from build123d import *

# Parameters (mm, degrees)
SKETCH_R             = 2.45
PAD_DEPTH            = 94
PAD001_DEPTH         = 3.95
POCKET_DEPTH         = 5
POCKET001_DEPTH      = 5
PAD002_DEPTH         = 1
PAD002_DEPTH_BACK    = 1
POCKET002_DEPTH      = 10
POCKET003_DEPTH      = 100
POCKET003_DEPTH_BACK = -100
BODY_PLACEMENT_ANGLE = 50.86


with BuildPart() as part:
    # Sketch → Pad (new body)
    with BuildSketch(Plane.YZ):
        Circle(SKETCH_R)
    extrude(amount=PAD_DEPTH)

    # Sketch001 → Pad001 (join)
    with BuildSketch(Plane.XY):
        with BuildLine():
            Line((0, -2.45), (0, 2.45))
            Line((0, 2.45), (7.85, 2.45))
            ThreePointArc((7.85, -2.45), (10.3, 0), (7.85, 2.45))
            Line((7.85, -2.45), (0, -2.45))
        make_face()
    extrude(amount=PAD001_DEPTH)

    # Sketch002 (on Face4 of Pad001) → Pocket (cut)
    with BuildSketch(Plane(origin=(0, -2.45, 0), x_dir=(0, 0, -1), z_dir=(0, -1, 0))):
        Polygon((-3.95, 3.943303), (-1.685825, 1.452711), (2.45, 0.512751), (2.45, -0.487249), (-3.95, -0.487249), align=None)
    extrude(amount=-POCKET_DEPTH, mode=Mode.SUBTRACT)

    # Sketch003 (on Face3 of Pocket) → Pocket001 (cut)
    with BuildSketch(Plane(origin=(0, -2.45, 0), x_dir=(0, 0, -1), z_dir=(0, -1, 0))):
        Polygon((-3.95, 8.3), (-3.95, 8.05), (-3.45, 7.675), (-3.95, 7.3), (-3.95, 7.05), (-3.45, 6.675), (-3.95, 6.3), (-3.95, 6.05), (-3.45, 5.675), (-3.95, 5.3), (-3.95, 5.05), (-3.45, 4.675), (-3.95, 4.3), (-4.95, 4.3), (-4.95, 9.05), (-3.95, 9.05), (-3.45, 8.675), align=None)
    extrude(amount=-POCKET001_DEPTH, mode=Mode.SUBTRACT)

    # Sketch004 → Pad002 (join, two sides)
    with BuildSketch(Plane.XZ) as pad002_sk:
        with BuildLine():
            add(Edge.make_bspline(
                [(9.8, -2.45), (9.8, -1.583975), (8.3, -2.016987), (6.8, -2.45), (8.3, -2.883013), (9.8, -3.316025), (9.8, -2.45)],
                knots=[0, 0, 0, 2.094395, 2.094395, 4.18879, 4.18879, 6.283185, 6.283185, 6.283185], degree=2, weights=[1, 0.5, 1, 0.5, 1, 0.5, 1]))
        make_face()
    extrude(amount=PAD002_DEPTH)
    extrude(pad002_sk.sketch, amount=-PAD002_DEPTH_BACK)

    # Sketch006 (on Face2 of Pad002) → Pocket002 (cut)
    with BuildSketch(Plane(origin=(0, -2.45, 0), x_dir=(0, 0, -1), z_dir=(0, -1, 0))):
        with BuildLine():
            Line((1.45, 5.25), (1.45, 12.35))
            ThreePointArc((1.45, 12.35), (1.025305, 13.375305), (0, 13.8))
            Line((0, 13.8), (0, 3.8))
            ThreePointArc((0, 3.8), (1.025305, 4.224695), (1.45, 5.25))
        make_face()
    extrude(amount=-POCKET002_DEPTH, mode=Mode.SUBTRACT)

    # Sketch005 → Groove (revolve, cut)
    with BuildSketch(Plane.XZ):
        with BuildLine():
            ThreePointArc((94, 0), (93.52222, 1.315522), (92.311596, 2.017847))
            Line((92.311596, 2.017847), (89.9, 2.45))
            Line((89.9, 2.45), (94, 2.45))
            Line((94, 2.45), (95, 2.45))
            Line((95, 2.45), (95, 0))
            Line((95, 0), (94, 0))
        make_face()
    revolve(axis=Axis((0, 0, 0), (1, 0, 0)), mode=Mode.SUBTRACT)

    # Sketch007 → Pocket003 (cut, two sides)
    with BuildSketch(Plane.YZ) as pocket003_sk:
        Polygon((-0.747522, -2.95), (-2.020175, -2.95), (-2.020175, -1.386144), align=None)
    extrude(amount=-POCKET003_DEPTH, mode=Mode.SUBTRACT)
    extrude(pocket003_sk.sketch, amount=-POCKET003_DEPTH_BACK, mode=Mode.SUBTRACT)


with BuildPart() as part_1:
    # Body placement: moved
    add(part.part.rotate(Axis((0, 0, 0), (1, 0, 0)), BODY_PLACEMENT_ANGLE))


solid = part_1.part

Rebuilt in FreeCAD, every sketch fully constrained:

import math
import FreeCAD as App
import Part
import Sketcher

V = App.Vector

doc = App.newDocument("Part")
body = doc.addObject("PartDesign::Body", "Body")

sketch1 = body.newObject("Sketcher::SketchObject", "Sketch")
sketch1.AttachmentSupport = (doc.getObject("YZ_Plane"), [""])
sketch1.MapMode = "FlatFace"
sketch1.addGeometry(Part.Circle(V(0, 0, 0), V(0, 0, 1), 2.45), False)
sketch1.addConstraint(Sketcher.Constraint("Coincident", 0, 3, -1, 1))
sketch1.addConstraint(Sketcher.Constraint("Diameter", 0, 4.9))
pad1 = body.newObject("PartDesign::Pad", "Pad")
pad1.Profile = sketch1
pad1.Length = 94

sketch2 = body.newObject("Sketcher::SketchObject", "Sketch001")
sketch2.AttachmentSupport = (doc.getObject("XY_Plane"), [""])
sketch2.MapMode = "FlatFace"
sketch2.addGeometry(Part.LineSegment(V(0, 2.45, 0), V(0, -2.45, 0)), False)
sketch2.addGeometry(Part.LineSegment(V(0, -2.45, 0), V(7.85, -2.45, 0)), False)
sketch2.addGeometry(Part.ArcOfCircle(Part.Circle(V(7.85, 0, 0), V(0, 0, 1), 2.45), math.radians(-90), math.radians(90)), False)
sketch2.addGeometry(Part.LineSegment(V(7.85, 2.45, 0), V(0, 2.45, 0)), False)
sketch2.addConstraint(Sketcher.Constraint("Coincident", 0, 2, 1, 1))
sketch2.addConstraint(Sketcher.Constraint("Tangent", 1, 2, 2, 1))
sketch2.addConstraint(Sketcher.Constraint("Tangent", 2, 2, 3, 1))
sketch2.addConstraint(Sketcher.Constraint("Coincident", 3, 2, 0, 1))
sketch2.addConstraint(Sketcher.Constraint("Vertical", 0))
sketch2.addConstraint(Sketcher.Constraint("Horizontal", 1))
sketch2.addConstraint(Sketcher.Constraint("Horizontal", 3))
sketch2.addConstraint(Sketcher.Constraint("Symmetric", 0, 2, 3, 2, -1, 1))
sketch2.addConstraint(Sketcher.Constraint("Radius", 2, 2.45))
sketch2.addConstraint(Sketcher.Constraint("DistanceX", 1, 1, 1, 2, 7.85))
pad2 = body.newObject("PartDesign::Pad", "Pad001")
pad2.Profile = sketch2
pad2.Length = 3.95

sketch3 = body.newObject("Sketcher::SketchObject", "Sketch002")
sketch3.AttachmentSupport = (doc.getObject("XZ_Plane"), [""])
sketch3.MapMode = "FlatFace"
sketch3.AttachmentOffset = App.Placement(V(0, 0, 2.45), App.Rotation())
sketch3.addGeometry(Part.LineSegment(V(1.452711, 1.685825, 0), V(3.943303, 3.95, 0)), False)
sketch3.addGeometry(Part.LineSegment(V(3.943303, 3.95, 0), V(-0.487249, 3.95, 0)), False)
sketch3.addGeometry(Part.LineSegment(V(-0.487249, 3.95, 0), V(-0.487249, -2.45, 0)), False)
sketch3.addGeometry(Part.LineSegment(V(-0.487249, -2.45, 0), V(0.512751, -2.45, 0)), False)
sketch3.addGeometry(Part.LineSegment(V(0.512751, -2.45, 0), V(1.452711, 1.685825, 0)), False)
sketch3.addConstraint(Sketcher.Constraint("Coincident", 0, 2, 1, 1))
sketch3.addConstraint(Sketcher.Constraint("Coincident", 1, 2, 2, 1))
sketch3.addConstraint(Sketcher.Constraint("Coincident", 2, 2, 3, 1))
sketch3.addConstraint(Sketcher.Constraint("Coincident", 3, 2, 4, 1))
sketch3.addConstraint(Sketcher.Constraint("Coincident", 4, 2, 0, 1))
sketch3.addConstraint(Sketcher.Constraint("Horizontal", 1))
sketch3.addConstraint(Sketcher.Constraint("Vertical", 2))
sketch3.addConstraint(Sketcher.Constraint("Horizontal", 3))
sketch3.addConstraint(Sketcher.Constraint("DistanceX", 3, 1, 3, 2, 1.0))
sketch3.addConstraint(Sketcher.Constraint("DistanceY", 2, 2, 2, 1, 6.4))
sketch3.addConstraint(Sketcher.Constraint("DistanceY", -1, 1, 0, 2, 3.95))
sketch3.addConstraint(Sketcher.Constraint("DistanceX", 1, 2, 1, 1, 4.430552))
sketch3.addConstraint(Sketcher.Constraint("DistanceX", 1, 2, -1, 1, 0.487249))
sketch3.addConstraint(Sketcher.Constraint("DistanceX", -1, 1, 4, 2, 1.452711))
sketch3.addConstraint(Sketcher.Constraint("Distance", 0, 3.365938))
pocket1 = body.newObject("PartDesign::Pocket", "Pocket")
pocket1.Profile = sketch3
pocket1.Length = 5

sketch4 = body.newObject("Sketcher::SketchObject", "Sketch003")
sketch4.AttachmentSupport = (doc.getObject("XZ_Plane"), [""])
sketch4.MapMode = "FlatFace"
sketch4.AttachmentOffset = App.Placement(V(0, 0, 2.45), App.Rotation())
sketch4.addGeometry(Part.LineSegment(V(8.05, 3.95, 0), V(8.3, 3.95, 0)), False)
sketch4.addGeometry(Part.LineSegment(V(8.3, 3.95, 0), V(8.675, 3.45, 0)), False)
sketch4.addGeometry(Part.LineSegment(V(8.675, 3.45, 0), V(9.05, 3.95, 0)), False)
sketch4.addGeometry(Part.LineSegment(V(9.05, 3.95, 0), V(9.05, 4.95, 0)), False)
sketch4.addGeometry(Part.LineSegment(V(9.05, 4.95, 0), V(4.3, 4.95, 0)), False)
sketch4.addGeometry(Part.LineSegment(V(4.3, 4.95, 0), V(4.3, 3.95, 0)), False)
sketch4.addGeometry(Part.LineSegment(V(4.3, 3.95, 0), V(4.675, 3.45, 0)), False)
sketch4.addGeometry(Part.LineSegment(V(4.675, 3.45, 0), V(5.05, 3.95, 0)), False)
sketch4.addGeometry(Part.LineSegment(V(5.05, 3.95, 0), V(5.3, 3.95, 0)), False)
sketch4.addGeometry(Part.LineSegment(V(5.3, 3.95, 0), V(5.675, 3.45, 0)), False)
sketch4.addGeometry(Part.LineSegment(V(5.675, 3.45, 0), V(6.05, 3.95, 0)), False)
sketch4.addGeometry(Part.LineSegment(V(6.05, 3.95, 0), V(6.3, 3.95, 0)), False)
sketch4.addGeometry(Part.LineSegment(V(6.3, 3.95, 0), V(6.675, 3.45, 0)), False)
sketch4.addGeometry(Part.LineSegment(V(6.675, 3.45, 0), V(7.05, 3.95, 0)), False)
sketch4.addGeometry(Part.LineSegment(V(7.05, 3.95, 0), V(7.3, 3.95, 0)), False)
sketch4.addGeometry(Part.LineSegment(V(7.3, 3.95, 0), V(7.675, 3.45, 0)), False)
sketch4.addGeometry(Part.LineSegment(V(7.675, 3.45, 0), V(8.05, 3.95, 0)), False)
sketch4.addConstraint(Sketcher.Constraint("Coincident", 0, 2, 1, 1))
sketch4.addConstraint(Sketcher.Constraint("Coincident", 1, 2, 2, 1))
sketch4.addConstraint(Sketcher.Constraint("Coincident", 2, 2, 3, 1))
sketch4.addConstraint(Sketcher.Constraint("Coincident", 3, 2, 4, 1))
sketch4.addConstraint(Sketcher.Constraint("Coincident", 4, 2, 5, 1))
sketch4.addConstraint(Sketcher.Constraint("Coincident", 5, 2, 6, 1))
sketch4.addConstraint(Sketcher.Constraint("Coincident", 6, 2, 7, 1))
sketch4.addConstraint(Sketcher.Constraint("Coincident", 7, 2, 8, 1))
sketch4.addConstraint(Sketcher.Constraint("Coincident", 8, 2, 9, 1))
sketch4.addConstraint(Sketcher.Constraint("Coincident", 9, 2, 10, 1))
sketch4.addConstraint(Sketcher.Constraint("Coincident", 10, 2, 11, 1))
sketch4.addConstraint(Sketcher.Constraint("Coincident", 11, 2, 12, 1))
sketch4.addConstraint(Sketcher.Constraint("Coincident", 12, 2, 13, 1))
sketch4.addConstraint(Sketcher.Constraint("Coincident", 13, 2, 14, 1))
sketch4.addConstraint(Sketcher.Constraint("Coincident", 14, 2, 15, 1))
sketch4.addConstraint(Sketcher.Constraint("Coincident", 15, 2, 16, 1))
sketch4.addConstraint(Sketcher.Constraint("Coincident", 16, 2, 0, 1))
sketch4.addConstraint(Sketcher.Constraint("Horizontal", 0))
sketch4.addConstraint(Sketcher.Constraint("Vertical", 3))
sketch4.addConstraint(Sketcher.Constraint("Horizontal", 4))
sketch4.addConstraint(Sketcher.Constraint("Vertical", 5))
sketch4.addConstraint(Sketcher.Constraint("Horizontal", 8))
sketch4.addConstraint(Sketcher.Constraint("Horizontal", 11))
sketch4.addConstraint(Sketcher.Constraint("Horizontal", 14))
sketch4.addConstraint(Sketcher.Constraint("Parallel", 1, 6))
sketch4.addConstraint(Sketcher.Constraint("Parallel", 2, 7))
sketch4.addConstraint(Sketcher.Constraint("Parallel", 6, 9))
sketch4.addConstraint(Sketcher.Constraint("Parallel", 7, 10))
sketch4.addConstraint(Sketcher.Constraint("Parallel", 9, 12))
sketch4.addConstraint(Sketcher.Constraint("Parallel", 10, 13))
sketch4.addConstraint(Sketcher.Constraint("Parallel", 12, 15))
sketch4.addConstraint(Sketcher.Constraint("Parallel", 13, 16))
sketch4.addConstraint(Sketcher.Constraint("Horizontal", 0, 2, 2, 2))
sketch4.addConstraint(Sketcher.Constraint("Horizontal", 2, 2, 5, 2))
sketch4.addConstraint(Sketcher.Constraint("Horizontal", 1, 2, 6, 2))
sketch4.addConstraint(Sketcher.Constraint("Horizontal", 5, 2, 7, 2))
sketch4.addConstraint(Sketcher.Constraint("Horizontal", 6, 2, 9, 2))
sketch4.addConstraint(Sketcher.Constraint("Horizontal", 8, 2, 10, 2))
sketch4.addConstraint(Sketcher.Constraint("Horizontal", 9, 2, 12, 2))
sketch4.addConstraint(Sketcher.Constraint("Horizontal", 11, 2, 13, 2))
sketch4.addConstraint(Sketcher.Constraint("Horizontal", 12, 2, 15, 2))
sketch4.addConstraint(Sketcher.Constraint("Equal", 0, 8))
sketch4.addConstraint(Sketcher.Constraint("Equal", 8, 11))
sketch4.addConstraint(Sketcher.Constraint("Equal", 11, 14))
sketch4.addConstraint(Sketcher.Constraint("Equal", 1, 2))
sketch4.addConstraint(Sketcher.Constraint("DistanceY", 3, 1, 3, 2, 1.0))
sketch4.addConstraint(Sketcher.Constraint("DistanceX", 4, 2, 0, 2, 4.0))
sketch4.addConstraint(Sketcher.Constraint("DistanceX", 0, 1, 0, 2, 0.25))
sketch4.addConstraint(Sketcher.Constraint("DistanceX", -1, 1, 0, 2, 8.3))
sketch4.addConstraint(Sketcher.Constraint("DistanceY", 1, 2, 0, 2, 0.5))
sketch4.addConstraint(Sketcher.Constraint("DistanceY", -1, 1, 0, 2, 3.95))
pocket2 = body.newObject("PartDesign::Pocket", "Pocket001")
pocket2.Profile = sketch4
pocket2.Length = 5

sketch5 = body.newObject("Sketcher::SketchObject", "Sketch004")
sketch5.AttachmentSupport = (doc.getObject("XZ_Plane"), [""])
sketch5.MapMode = "FlatFace"
sketch5.addGeometry(Part.BSplineCurve([V(9.8, -2.45, 0), V(9.8, -1.583975, 0), V(8.3, -2.016987, 0), V(6.8, -2.45, 0), V(8.3, -2.883013, 0), V(9.8, -3.316025, 0), V(9.8, -2.45, 0)], [3, 2, 2, 3], [0, 2.094395, 4.18879, 6.283185], False, 2, [1, 0.5, 1, 0.5, 1, 0.5, 1], False), False)
sketch5.addConstraint(Sketcher.Constraint("Block", 0))
pad3 = body.newObject("PartDesign::Pad", "Pad002")
pad3.Profile = sketch5
pad3.Type = "TwoLengths"
pad3.Length = 1
pad3.Length2 = 1

sketch6 = body.newObject("Sketcher::SketchObject", "Sketch005")
sketch6.AttachmentSupport = (doc.getObject("XZ_Plane"), [""])
sketch6.MapMode = "FlatFace"
sketch6.AttachmentOffset = App.Placement(V(0, 0, 2.45), App.Rotation())
sketch6.addGeometry(Part.LineSegment(V(5.25, -1.45, 0), V(12.35, -1.45, 0)), False)
sketch6.addGeometry(Part.ArcOfCircle(Part.Circle(V(12.350001, -0.000001, 0), V(0, 0, 1), 1.449999), math.radians(-90.000023), math.radians(0.000023)), False)
sketch6.addGeometry(Part.LineSegment(V(13.8, 0, 0), V(3.8, 0, 0)), False)
sketch6.addGeometry(Part.ArcOfCircle(Part.Circle(V(5.249999, -0.000001, 0), V(0, 0, 1), 1.449999), math.radians(179.999977), math.radians(270.000023)), False)
sketch6.addConstraint(Sketcher.Constraint("Tangent", 0, 2, 1, 1))
sketch6.addConstraint(Sketcher.Constraint("Coincident", 1, 2, 2, 1))
sketch6.addConstraint(Sketcher.Constraint("Coincident", 2, 2, 3, 1))
sketch6.addConstraint(Sketcher.Constraint("Tangent", 3, 2, 0, 1))
sketch6.addConstraint(Sketcher.Constraint("Horizontal", 0))
sketch6.addConstraint(Sketcher.Constraint("Horizontal", 2))
sketch6.addConstraint(Sketcher.Constraint("Equal", 1, 3))
sketch6.addConstraint(Sketcher.Constraint("PointOnObject", 1, 3, -1))
sketch6.addConstraint(Sketcher.Constraint("PointOnObject", 1, 2, -1))
sketch6.addConstraint(Sketcher.Constraint("DistanceX", 2, 2, 2, 1, 10.0))
sketch6.addConstraint(Sketcher.Constraint("Radius", 1, 1.449999))
sketch6.addConstraint(Sketcher.Constraint("DistanceX", -1, 1, 1, 2, 13.8))
pocket3 = body.newObject("PartDesign::Pocket", "Pocket002")
pocket3.Profile = sketch6
pocket3.Length = 10

sketch7 = body.newObject("Sketcher::SketchObject", "Sketch006")
sketch7.AttachmentSupport = (doc.getObject("XZ_Plane"), [""])
sketch7.MapMode = "FlatFace"
sketch7.addGeometry(Part.ArcOfCircle(Part.Circle(V(91.950001, -0.00001, 0), V(0, 0, 1), 2.049999), math.radians(0.000269), math.radians(79.840563)), False)
sketch7.addGeometry(Part.LineSegment(V(94, 0, 0), V(95, 0, 0)), False)
sketch7.addGeometry(Part.LineSegment(V(95, 0, 0), V(95, 2.45, 0)), False)
sketch7.addGeometry(Part.LineSegment(V(95, 2.45, 0), V(89.9, 2.45, 0)), False)
sketch7.addGeometry(Part.LineSegment(V(89.9, 2.45, 0), V(92.311596, 2.017847, 0)), False)
sketch7.addConstraint(Sketcher.Constraint("Coincident", 0, 1, 1, 1))
sketch7.addConstraint(Sketcher.Constraint("Coincident", 1, 2, 2, 1))
sketch7.addConstraint(Sketcher.Constraint("Coincident", 2, 2, 3, 1))
sketch7.addConstraint(Sketcher.Constraint("Coincident", 3, 2, 4, 1))
sketch7.addConstraint(Sketcher.Constraint("Tangent", 4, 2, 0, 2))
sketch7.addConstraint(Sketcher.Constraint("Horizontal", 1))
sketch7.addConstraint(Sketcher.Constraint("Vertical", 2))
sketch7.addConstraint(Sketcher.Constraint("Horizontal", 3))
sketch7.addConstraint(Sketcher.Constraint("PointOnObject", 0, 1, -1))
sketch7.addConstraint(Sketcher.Constraint("DistanceX", 1, 1, 1, 2, 1.0))
sketch7.addConstraint(Sketcher.Constraint("Radius", 0, 2.049999))
sketch7.addConstraint(Sketcher.Constraint("DistanceX", 3, 2, 3, 1, 5.1))
sketch7.addConstraint(Sketcher.Constraint("DistanceX", -1, 1, 0, 1, 94.0))
sketch7.addConstraint(Sketcher.Constraint("DistanceY", 2, 1, 2, 2, 2.45))
sketch7.addConstraint(Sketcher.Constraint("Distance", 4, 2.450011))
groove = body.newObject("PartDesign::Groove", "Groove")
groove.Profile = sketch7
groove.ReferenceAxis = (sketch7, ["H_Axis"])
groove.Angle = 360

sketch8 = body.newObject("Sketcher::SketchObject", "Sketch007")
sketch8.AttachmentSupport = (doc.getObject("YZ_Plane"), [""])
sketch8.MapMode = "FlatFace"
sketch8.addGeometry(Part.LineSegment(V(-2.020175, -2.95, 0), V(-0.747522, -2.95, 0)), False)
sketch8.addGeometry(Part.LineSegment(V(-0.747522, -2.95, 0), V(-2.020175, -1.386144, 0)), False)
sketch8.addGeometry(Part.LineSegment(V(-2.020175, -1.386144, 0), V(-2.020175, -2.95, 0)), False)
sketch8.addConstraint(Sketcher.Constraint("Coincident", 0, 2, 1, 1))
sketch8.addConstraint(Sketcher.Constraint("Coincident", 1, 2, 2, 1))
sketch8.addConstraint(Sketcher.Constraint("Coincident", 2, 2, 0, 1))
sketch8.addConstraint(Sketcher.Constraint("Horizontal", 0))
sketch8.addConstraint(Sketcher.Constraint("Vertical", 2))
sketch8.addConstraint(Sketcher.Constraint("DistanceY", 0, 2, -1, 1, 2.95))
sketch8.addConstraint(Sketcher.Constraint("DistanceX", 0, 1, 0, 2, 1.272653))
sketch8.addConstraint(Sketcher.Constraint("DistanceY", 2, 2, 2, 1, 1.563856))
sketch8.addConstraint(Sketcher.Constraint("DistanceX", 0, 2, -1, 1, 0.747522))
pocket4 = body.newObject("PartDesign::Pocket", "Pocket003")
pocket4.Profile = sketch8
pocket4.Type = "ThroughAll"
pocket4.Midplane = True
body2 = doc.addObject("PartDesign::Body", "Body001")
doc.recompute()

body.Placement = App.Placement(V(0, 0, 0), App.Rotation(V(1, 0, 0), 50.86))
boolean = body2.newObject("PartDesign::Boolean", "Boolean")
boolean.Type = "Fuse"
boolean.addObjects([body])

doc.recompute()
